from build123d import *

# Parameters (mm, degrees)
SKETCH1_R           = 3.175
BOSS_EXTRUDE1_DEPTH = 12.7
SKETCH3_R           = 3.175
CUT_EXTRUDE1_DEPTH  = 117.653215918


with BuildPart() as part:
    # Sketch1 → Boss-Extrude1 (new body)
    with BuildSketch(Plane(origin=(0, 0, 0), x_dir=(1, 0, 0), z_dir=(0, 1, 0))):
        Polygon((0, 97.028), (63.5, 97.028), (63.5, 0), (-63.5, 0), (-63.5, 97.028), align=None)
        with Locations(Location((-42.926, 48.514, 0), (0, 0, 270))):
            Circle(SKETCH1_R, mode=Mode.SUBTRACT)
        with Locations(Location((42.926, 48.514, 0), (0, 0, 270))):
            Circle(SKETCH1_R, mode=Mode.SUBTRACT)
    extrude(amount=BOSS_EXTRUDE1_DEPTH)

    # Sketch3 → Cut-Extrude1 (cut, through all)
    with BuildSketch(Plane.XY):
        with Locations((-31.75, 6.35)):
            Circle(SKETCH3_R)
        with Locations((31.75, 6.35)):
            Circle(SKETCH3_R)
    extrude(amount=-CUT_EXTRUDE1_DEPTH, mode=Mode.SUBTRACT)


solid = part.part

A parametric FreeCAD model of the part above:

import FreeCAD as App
import Part
import Sketcher

V = App.Vector
Q = App.Units.Quantity


def add_polygon(sketch, points):
    """Adds a closed chain of lines whose ends are joined by coincident constraints."""
    first, n = sketch.GeometryCount, len(points)
    for a, b in zip(points, points[1:] + points[:1]):
        sketch.addGeometry(Part.LineSegment(App.Vector(*a, 0), App.Vector(*b, 0)), False)
    for i in range(n):
        sketch.addConstraint(Sketcher.Constraint("Coincident", first + i, 2, first + (i + 1) % n, 1))

doc = App.newDocument("Part")
params = doc.addObject("Spreadsheet::Sheet", "Params")
for row, (alias, value) in enumerate([
    ("sketch1_diameter", "0.25 in"),
    ("sketch1_width", "5 in"),
    ("sketch1_height", "3.82 in"),
    ("pad1_length", "0.5 in"),
    ("sketch2_diameter", "0.25 in"),
], start=1):
    params.set(f"A{row}", alias)
    params.set(f"B{row}", "=" + value)
    params.setAlias(f"B{row}", alias)

body = doc.addObject("PartDesign::Body", "Body")

# Sketch on XZ plane
sketch1 = body.newObject("Sketcher::SketchObject", "Sketch")
sketch1.AttachmentSupport = (doc.getObject("XZ_Plane"), [""])
sketch1.MapMode = "FlatFace"
add_polygon(sketch1, [(63.5, -97), (-63.5, -97), (-63.5, 0), (63.5, 0)])  # lines 0-3
sketch1.addGeometry(Part.Circle(V(42.9, -48.5, 0), V(0, 0, 1), 3.2), False)  # 4
sketch1.addGeometry(Part.Circle(V(-42.9, -48.5, 0), V(0, 0, 1), 3.2), False)  # 5
sketch1.addConstraint([
    Sketcher.Constraint("Horizontal", 0),
    Sketcher.Constraint("Vertical", 1),
    Sketcher.Constraint("Horizontal", 2),
    Sketcher.Constraint("Vertical", 3),
    Sketcher.Constraint("Equal", 4, 5),
    Sketcher.Constraint("Symmetric", 1, 2, 2, 2, -1, 1),
    Sketcher.Constraint("Symmetric", 4, 3, 5, 3, -2),
    Sketcher.Constraint("Diameter", 4, Q("0.25 in")),
    Sketcher.Constraint("DistanceX", 0, 2, 0, 1, Q("5 in")),
    Sketcher.Constraint("DistanceY", 1, 1, 1, 2, Q("3.82 in")),
    Sketcher.Constraint("DistanceX", -1, 1, 4, 3, Q("1.69 in")),
    Sketcher.Constraint("DistanceY", 4, 3, -1, 1, Q("1.91 in")),
])
sketch1.setExpression("Constraints[11]", "Params.sketch1_diameter")
sketch1.setExpression("Constraints[12]", "Params.sketch1_width")
sketch1.setExpression("Constraints[13]", "Params.sketch1_height")
pad1 = body.newObject("PartDesign::Pad", "Pad")
pad1.Profile = sketch1
pad1.setExpression("Length", "Params.pad1_length")
pad1.Reversed = True

# Sketch on XY plane
sketch2 = body.newObject("Sketcher::SketchObject", "Sketch001")
sketch2.AttachmentSupport = (doc.getObject("XY_Plane"), [""])
sketch2.MapMode = "FlatFace"
sketch2.addGeometry([
    Part.Circle(V(-31.8, 6.3, 0), V(0, 0, 1), 3.2),
    Part.Circle(V(31.8, 6.3, 0), V(0, 0, 1), 3.2),
], False)
sketch2.addConstraint([
    Sketcher.Constraint("Equal", 0, 1),
    Sketcher.Constraint("Symmetric", 0, 3, 1, 3, -2),
    Sketcher.Constraint("Diameter", 0, Q("0.25 in")),
    Sketcher.Constraint("DistanceX", 0, 3, 1, 3, Q("2.5 in")),
    Sketcher.Constraint("DistanceY", -1, 1, 0, 3, Q("0.25 in")),
])
sketch2.setExpression("Constraints[2]", "Params.sketch2_diameter")
pocket1 = body.newObject("PartDesign::Pocket", "Pocket")
pocket1.Profile = sketch2
pocket1.Type = "ThroughAll"

doc.recompute()
